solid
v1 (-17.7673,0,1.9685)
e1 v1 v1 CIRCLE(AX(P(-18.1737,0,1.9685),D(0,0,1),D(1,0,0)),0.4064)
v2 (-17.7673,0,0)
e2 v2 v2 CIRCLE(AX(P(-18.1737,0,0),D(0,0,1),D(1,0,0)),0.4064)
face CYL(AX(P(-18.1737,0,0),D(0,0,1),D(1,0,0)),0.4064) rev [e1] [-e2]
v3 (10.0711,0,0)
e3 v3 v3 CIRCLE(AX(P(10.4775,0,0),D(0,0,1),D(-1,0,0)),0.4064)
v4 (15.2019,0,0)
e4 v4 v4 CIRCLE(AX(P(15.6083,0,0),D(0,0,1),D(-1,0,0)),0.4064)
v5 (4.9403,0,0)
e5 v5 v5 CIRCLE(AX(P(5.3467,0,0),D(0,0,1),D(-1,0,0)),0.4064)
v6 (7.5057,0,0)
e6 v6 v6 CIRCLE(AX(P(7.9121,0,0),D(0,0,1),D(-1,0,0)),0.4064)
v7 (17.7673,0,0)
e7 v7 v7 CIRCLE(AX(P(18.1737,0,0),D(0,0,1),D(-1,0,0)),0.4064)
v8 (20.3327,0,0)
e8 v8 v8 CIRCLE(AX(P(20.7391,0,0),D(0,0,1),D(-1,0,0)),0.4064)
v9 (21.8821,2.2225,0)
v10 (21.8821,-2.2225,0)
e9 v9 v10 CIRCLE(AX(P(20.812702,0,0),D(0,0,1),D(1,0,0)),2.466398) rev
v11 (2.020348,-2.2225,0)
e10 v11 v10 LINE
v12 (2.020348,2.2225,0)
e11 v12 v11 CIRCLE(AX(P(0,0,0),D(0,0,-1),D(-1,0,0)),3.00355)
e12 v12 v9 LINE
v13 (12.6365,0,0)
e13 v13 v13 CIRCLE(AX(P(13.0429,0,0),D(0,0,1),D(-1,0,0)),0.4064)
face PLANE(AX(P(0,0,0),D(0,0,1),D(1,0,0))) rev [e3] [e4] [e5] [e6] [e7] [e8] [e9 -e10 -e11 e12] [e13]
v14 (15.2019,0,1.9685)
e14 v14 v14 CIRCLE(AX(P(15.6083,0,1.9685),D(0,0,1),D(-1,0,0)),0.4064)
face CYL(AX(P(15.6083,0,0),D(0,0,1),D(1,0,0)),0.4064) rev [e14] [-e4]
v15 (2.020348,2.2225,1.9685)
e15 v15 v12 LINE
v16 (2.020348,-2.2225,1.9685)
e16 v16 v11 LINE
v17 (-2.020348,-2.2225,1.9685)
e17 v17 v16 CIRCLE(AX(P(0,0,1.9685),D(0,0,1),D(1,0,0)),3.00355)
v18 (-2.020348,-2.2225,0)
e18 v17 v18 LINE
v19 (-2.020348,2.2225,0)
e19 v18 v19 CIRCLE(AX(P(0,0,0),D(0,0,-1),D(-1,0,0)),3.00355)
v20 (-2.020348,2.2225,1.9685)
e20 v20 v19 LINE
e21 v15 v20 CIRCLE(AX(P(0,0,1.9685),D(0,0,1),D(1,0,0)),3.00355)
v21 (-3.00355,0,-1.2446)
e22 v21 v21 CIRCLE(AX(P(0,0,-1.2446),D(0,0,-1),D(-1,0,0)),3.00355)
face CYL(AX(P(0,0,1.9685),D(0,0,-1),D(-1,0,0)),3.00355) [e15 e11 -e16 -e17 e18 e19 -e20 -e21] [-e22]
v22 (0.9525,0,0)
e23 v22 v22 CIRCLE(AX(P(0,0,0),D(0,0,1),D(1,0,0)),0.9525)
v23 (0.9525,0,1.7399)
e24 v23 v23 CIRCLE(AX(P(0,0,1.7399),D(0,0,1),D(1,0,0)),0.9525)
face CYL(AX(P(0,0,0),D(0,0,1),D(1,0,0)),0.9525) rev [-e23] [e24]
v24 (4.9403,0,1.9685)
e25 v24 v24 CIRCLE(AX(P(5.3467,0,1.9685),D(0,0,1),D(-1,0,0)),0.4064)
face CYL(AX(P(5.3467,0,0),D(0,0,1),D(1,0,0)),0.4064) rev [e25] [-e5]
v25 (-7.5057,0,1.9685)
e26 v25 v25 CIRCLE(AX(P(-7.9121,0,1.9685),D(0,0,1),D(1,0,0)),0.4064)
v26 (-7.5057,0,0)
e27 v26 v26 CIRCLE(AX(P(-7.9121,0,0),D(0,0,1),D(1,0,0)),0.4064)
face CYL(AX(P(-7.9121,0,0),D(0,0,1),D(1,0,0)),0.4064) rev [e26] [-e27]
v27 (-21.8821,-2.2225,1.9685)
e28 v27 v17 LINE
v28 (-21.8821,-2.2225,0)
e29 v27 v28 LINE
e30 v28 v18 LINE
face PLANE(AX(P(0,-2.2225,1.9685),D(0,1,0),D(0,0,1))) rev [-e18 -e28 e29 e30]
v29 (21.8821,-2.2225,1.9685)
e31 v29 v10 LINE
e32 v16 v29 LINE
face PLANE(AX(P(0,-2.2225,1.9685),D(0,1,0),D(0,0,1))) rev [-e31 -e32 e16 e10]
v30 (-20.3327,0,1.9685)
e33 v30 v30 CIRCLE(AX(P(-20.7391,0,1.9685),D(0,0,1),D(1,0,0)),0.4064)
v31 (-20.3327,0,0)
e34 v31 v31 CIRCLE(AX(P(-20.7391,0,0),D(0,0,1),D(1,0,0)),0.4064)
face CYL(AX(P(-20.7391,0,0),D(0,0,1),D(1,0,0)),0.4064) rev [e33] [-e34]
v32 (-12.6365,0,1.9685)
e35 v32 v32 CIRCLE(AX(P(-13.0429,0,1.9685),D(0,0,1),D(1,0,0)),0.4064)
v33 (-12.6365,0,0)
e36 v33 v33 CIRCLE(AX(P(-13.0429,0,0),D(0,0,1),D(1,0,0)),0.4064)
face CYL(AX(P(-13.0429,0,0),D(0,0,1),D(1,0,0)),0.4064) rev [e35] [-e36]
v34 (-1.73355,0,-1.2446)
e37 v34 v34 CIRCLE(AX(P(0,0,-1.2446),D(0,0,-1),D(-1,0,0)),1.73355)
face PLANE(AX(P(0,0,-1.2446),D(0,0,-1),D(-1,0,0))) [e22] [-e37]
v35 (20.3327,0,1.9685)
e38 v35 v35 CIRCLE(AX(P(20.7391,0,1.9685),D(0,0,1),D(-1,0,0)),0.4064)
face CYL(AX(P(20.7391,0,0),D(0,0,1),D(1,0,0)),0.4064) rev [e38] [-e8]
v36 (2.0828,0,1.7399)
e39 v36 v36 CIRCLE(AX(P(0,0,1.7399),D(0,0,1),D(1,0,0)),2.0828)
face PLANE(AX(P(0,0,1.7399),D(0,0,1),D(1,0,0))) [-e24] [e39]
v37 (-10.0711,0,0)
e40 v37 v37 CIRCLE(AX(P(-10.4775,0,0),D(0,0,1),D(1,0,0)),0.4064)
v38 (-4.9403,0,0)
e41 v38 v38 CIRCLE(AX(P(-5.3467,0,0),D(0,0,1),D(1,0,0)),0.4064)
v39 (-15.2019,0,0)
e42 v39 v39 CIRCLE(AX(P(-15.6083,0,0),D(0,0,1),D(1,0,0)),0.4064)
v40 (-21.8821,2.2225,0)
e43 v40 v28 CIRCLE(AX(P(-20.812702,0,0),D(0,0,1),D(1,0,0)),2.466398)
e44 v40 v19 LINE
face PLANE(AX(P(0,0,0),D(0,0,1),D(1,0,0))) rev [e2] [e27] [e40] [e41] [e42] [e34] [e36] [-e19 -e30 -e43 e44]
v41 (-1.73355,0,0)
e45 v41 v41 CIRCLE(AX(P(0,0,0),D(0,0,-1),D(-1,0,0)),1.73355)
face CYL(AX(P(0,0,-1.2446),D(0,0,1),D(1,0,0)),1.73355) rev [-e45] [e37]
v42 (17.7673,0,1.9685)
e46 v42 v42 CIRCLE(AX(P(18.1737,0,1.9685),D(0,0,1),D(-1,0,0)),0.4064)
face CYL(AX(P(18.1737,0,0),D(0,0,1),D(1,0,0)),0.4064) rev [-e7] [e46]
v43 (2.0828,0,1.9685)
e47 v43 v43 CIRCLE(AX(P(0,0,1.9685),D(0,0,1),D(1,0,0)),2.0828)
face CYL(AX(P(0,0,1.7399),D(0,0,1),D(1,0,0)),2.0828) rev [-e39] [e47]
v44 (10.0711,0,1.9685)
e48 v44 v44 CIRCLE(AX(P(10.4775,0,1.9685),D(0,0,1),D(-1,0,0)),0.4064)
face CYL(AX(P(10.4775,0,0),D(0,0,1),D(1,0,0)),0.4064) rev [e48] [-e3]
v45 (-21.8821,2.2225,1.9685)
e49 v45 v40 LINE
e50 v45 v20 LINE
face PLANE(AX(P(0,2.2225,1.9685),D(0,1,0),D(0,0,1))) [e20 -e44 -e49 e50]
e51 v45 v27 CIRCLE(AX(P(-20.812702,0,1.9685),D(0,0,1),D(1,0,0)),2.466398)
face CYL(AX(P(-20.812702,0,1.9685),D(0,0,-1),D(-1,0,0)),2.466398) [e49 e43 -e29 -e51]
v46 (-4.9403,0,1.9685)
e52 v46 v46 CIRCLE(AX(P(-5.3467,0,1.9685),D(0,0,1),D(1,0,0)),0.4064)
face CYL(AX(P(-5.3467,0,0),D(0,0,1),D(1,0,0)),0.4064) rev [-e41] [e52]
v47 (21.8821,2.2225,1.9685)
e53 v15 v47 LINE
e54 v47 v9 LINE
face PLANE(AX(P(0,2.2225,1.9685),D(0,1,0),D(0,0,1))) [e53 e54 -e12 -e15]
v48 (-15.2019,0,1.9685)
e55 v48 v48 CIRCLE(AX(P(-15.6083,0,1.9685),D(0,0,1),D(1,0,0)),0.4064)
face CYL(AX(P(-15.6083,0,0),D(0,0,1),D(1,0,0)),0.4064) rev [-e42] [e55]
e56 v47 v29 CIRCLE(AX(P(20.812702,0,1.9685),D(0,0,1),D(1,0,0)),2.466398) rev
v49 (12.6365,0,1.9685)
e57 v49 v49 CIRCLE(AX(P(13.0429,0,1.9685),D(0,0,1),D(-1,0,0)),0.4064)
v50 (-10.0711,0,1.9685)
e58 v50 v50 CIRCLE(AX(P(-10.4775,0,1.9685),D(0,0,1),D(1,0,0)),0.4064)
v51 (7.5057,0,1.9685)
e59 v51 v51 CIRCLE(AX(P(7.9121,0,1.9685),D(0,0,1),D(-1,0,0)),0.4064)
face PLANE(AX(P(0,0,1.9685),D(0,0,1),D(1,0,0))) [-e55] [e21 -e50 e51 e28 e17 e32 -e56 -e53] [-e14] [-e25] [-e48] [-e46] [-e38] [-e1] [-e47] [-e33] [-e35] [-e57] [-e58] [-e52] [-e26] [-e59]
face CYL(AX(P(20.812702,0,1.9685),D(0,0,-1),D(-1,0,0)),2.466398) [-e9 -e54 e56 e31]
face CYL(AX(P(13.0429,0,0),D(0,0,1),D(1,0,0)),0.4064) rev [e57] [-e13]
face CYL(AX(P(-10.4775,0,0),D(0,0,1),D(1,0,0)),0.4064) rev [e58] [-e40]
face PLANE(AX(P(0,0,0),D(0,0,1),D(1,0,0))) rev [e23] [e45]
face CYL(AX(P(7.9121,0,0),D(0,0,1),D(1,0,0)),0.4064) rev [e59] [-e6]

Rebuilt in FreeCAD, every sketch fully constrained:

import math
import FreeCAD as App
import Part
import Sketcher

V = App.Vector
Q = App.Units.Quantity

doc = App.newDocument("Part")
body = doc.addObject("PartDesign::Body", "Body")

# Sketch on XY plane
sketch1 = doc.addObject("Sketcher::SketchObject", "Sketch")
body.addObject(sketch1)
sketch1.AttachmentSupport = (doc.XY_Plane, [""])
sketch1.MapMode = "FlatFace"
sketch1.addGeometry([
    Part.ArcOfCircle(Part.Circle(V(0, 0, 0), V(0, 0, 1), 3), math.radians(-132), math.radians(-48)),  # 0
    Part.LineSegment(V(2, -2.2, 0), V(21.9, -2.2, 0)),  # 1
    Part.ArcOfCircle(Part.Circle(V(20.8, 0, 0), V(0, 0, 1), 2.5), math.radians(-64), math.radians(0)),  # 2
    Part.ArcOfCircle(Part.Circle(V(20.8, 0, 0), V(0, 0, 1), 2.5), math.radians(0), math.radians(64)),  # 3
    Part.LineSegment(V(21.9, 2.2, 0), V(2, 2.2, 0)),  # 4
    Part.ArcOfCircle(Part.Circle(V(0, 0, 0), V(0, 0, 1), 3), math.radians(48), math.radians(132)),  # 5
    Part.LineSegment(V(-2, 2.2, 0), V(-21.9, 2.2, 0)),  # 6
    Part.ArcOfCircle(Part.Circle(V(-20.8, 0, 0), V(0, 0, 1), 2.5), math.radians(116), math.radians(180)),  # 7
    Part.ArcOfCircle(Part.Circle(V(-20.8, 0, 0), V(0, 0, 1), 2.5), math.radians(180), math.radians(244)),  # 8
    Part.LineSegment(V(-21.9, -2.2, 0), V(-2, -2.2, 0)),  # 9
], False)
sketch1.addConstraint([
    Sketcher.Constraint("Coincident", 0, 2, 1, 1),
    Sketcher.Constraint("Coincident", 1, 2, 2, 1),
    Sketcher.Constraint("Tangent", 2, 2, 3, 1),
    Sketcher.Constraint("Coincident", 3, 2, 4, 1),
    Sketcher.Constraint("Coincident", 4, 2, 5, 1),
    Sketcher.Constraint("Coincident", 5, 2, 6, 1),
    Sketcher.Constraint("Coincident", 6, 2, 7, 1),
    Sketcher.Constraint("Tangent", 7, 2, 8, 1),
    Sketcher.Constraint("Coincident", 8, 2, 9, 1),
    Sketcher.Constraint("Coincident", 9, 2, 0, 1),
    Sketcher.Constraint("Horizontal", 1),
    Sketcher.Constraint("Horizontal", 4),
    Sketcher.Constraint("Horizontal", 6),
    Sketcher.Constraint("Horizontal", 9),
    Sketcher.Constraint("Coincident", 0, 3, -1, 1),
    Sketcher.Constraint("Coincident", 5, 3, -1, 1),
    Sketcher.Constraint("Equal", 2, 3),
    Sketcher.Constraint("Equal", 0, 5),
    Sketcher.Constraint("Equal", 3, 7),
    Sketcher.Constraint("Equal", 7, 8),
    Sketcher.Constraint("Symmetric", 2, 3, 7, 3, -1, 1),
    Sketcher.Constraint("Symmetric", 3, 2, 6, 2, -2),
    Sketcher.Constraint("PointOnObject", 2, 2, -1),
    Sketcher.Constraint("PointOnObject", 7, 2, -1),
    Sketcher.Constraint("Horizontal", 1, 2, 8, 2),
    Sketcher.Constraint("Vertical", 1, 2, 3, 2),
    Sketcher.Constraint("Radius", 0, Q("3.00355 mm")),
    Sketcher.Constraint("DistanceX", 1, 2, 2, 2, Q("0.055 in")),
    Sketcher.Constraint("DistanceY", 1, 2, 3, 2, Q("0.175 in")),
    Sketcher.Constraint("DistanceX", -1, 1, 1, 2, Q("0.8615 in")),
])
pad1 = doc.addObject("PartDesign::Pad", "Pad")
body.addObject(pad1)
pad1.Profile = sketch1
pad1.Length = Q("0.0775 in")

# Sketch on XY plane
sketch2 = doc.addObject("Sketcher::SketchObject", "Sketch001")
body.addObject(sketch2)
sketch2.AttachmentSupport = (doc.XY_Plane, [""])
sketch2.MapMode = "FlatFace"
sketch2.AttachmentOffset = App.Placement(V(0, 0, 0.0775 * 25.4), App.Rotation())
sketch2.addGeometry([
    Part.Circle(V(-20.74, 0, 0), V(0, 0, 1), 0.41),  # 0
    Part.Circle(V(-18.17, 0, 0), V(0, 0, 1), 0.41),  # 1
    Part.Circle(V(-15.61, 0, 0), V(0, 0, 1), 0.41),  # 2
    Part.Circle(V(-13.04, 0, 0), V(0, 0, 1), 0.41),  # 3
    Part.Circle(V(-10.48, 0, 0), V(0, 0, 1), 0.41),  # 4
    Part.Circle(V(-7.91, 0, 0), V(0, 0, 1), 0.41),  # 5
    Part.Circle(V(-5.35, 0, 0), V(0, 0, 1), 0.41),  # 6
    Part.Circle(V(5.35, 0, 0), V(0, 0, 1), 0.41),  # 7
    Part.Circle(V(7.91, 0, 0), V(0, 0, 1), 0.41),  # 8
    Part.Circle(V(10.48, 0, 0), V(0, 0, 1), 0.41),  # 9
    Part.Circle(V(13.04, 0, 0), V(0, 0, 1), 0.41),  # 10
    Part.Circle(V(15.61, 0, 0), V(0, 0, 1), 0.41),  # 11
    Part.Circle(V(18.17, 0, 0), V(0, 0, 1), 0.41),  # 12
    Part.Circle(V(20.74, 0, 0), V(0, 0, 1), 0.41),  # 13
], False)
sketch2.addConstraint([
    Sketcher.Constraint("Equal", 0, 1),
    Sketcher.Constraint("Equal", 1, 2),
    Sketcher.Constraint("Equal", 2, 3),
    Sketcher.Constraint("Equal", 3, 4),
    Sketcher.Constraint("Equal", 4, 5),
    Sketcher.Constraint("Equal", 5, 6),
    Sketcher.Constraint("Equal", 6, 7),
    Sketcher.Constraint("Equal", 7, 8),
    Sketcher.Constraint("Equal", 8, 9),
    Sketcher.Constraint("Equal", 9, 10),
    Sketcher.Constraint("Equal", 10, 11),
    Sketcher.Constraint("Equal", 11, 12),
    Sketcher.Constraint("Equal", 12, 13),
    Sketcher.Constraint("Symmetric", 6, 3, 7, 3, -1, 1),
    Sketcher.Constraint("Symmetric", 5, 3, 8, 3, -1, 1),
    Sketcher.Constraint("Symmetric", 4, 3, 9, 3, -1, 1),
    Sketcher.Constraint("Symmetric", 3, 3, 10, 3, -1, 1),
    Sketcher.Constraint("Symmetric", 2, 3, 11, 3, -1, 1),
    Sketcher.Constraint("Symmetric", 1, 3, 12, 3, -1, 1),
    Sketcher.Constraint("Symmetric", 0, 3, 13, 3, -1, 1),
    Sketcher.Constraint("PointOnObject", 0, 3, -1),
    Sketcher.Constraint("PointOnObject", 1, 3, -1),
    Sketcher.Constraint("PointOnObject", 2, 3, -1),
    Sketcher.Constraint("PointOnObject", 3, 3, -1),
    Sketcher.Constraint("PointOnObject", 4, 3, -1),
    Sketcher.Constraint("PointOnObject", 5, 3, -1),
    Sketcher.Constraint("PointOnObject", 6, 3, -1),
    Sketcher.Constraint("Diameter", 0, Q("0.032 in")),
    Sketcher.Constraint("DistanceX", 0, 3, 1, 3, Q("0.101 in")),
    Sketcher.Constraint("DistanceX", 1, 3, 2, 3, Q("0.101 in")),
    Sketcher.Constraint("DistanceX", 2, 3, 3, 3, Q("0.101 in")),
    Sketcher.Constraint("DistanceX", 3, 3, 4, 3, Q("0.101 in")),
    Sketcher.Constraint("DistanceX", 4, 3, 5, 3, Q("0.101 in")),
    Sketcher.Constraint("DistanceX", 5, 3, 6, 3, Q("0.101 in")),
    Sketcher.Constraint("DistanceX", 6, 3, 7, 3, Q("0.421 in")),
])
pocket1 = doc.addObject("PartDesign::Pocket", "Pocket")
body.addObject(pocket1)
pocket1.Profile = sketch2
pocket1.Type = "ThroughAll"

# Sketch on XY plane
sketch3 = doc.addObject("Sketcher::SketchObject", "Sketch002")
body.addObject(sketch3)
sketch3.AttachmentSupport = (doc.XY_Plane, [""])
sketch3.MapMode = "FlatFace"
sketch3.AttachmentOffset = App.Placement(V(0, 0, 0.0775 * 25.4), App.Rotation())
sketch3.addGeometry(Part.Circle(V(0, 0, 0), V(0, 0, 1), 2.1), False)
sketch3.addConstraint([
    Sketcher.Constraint("Coincident", 0, 3, -1, 1),
    Sketcher.Constraint("Diameter", 0, Q("0.164 in")),
])
pocket2 = doc.addObject("PartDesign::Pocket", "Pocket001")
body.addObject(pocket2)
pocket2.Profile = sketch3
pocket2.Length = Q("0.009 in")

# Sketch on XY plane
sketch4 = doc.addObject("Sketcher::SketchObject", "Sketch003")
body.addObject(sketch4)
sketch4.AttachmentSupport = (doc.XY_Plane, [""])
sketch4.MapMode = "FlatFace"
sketch4.AttachmentOffset = App.Placement(V(0, 0, 0.0685 * 25.4), App.Rotation())
sketch4.addGeometry(Part.Circle(V(0, 0, 0), V(0, 0, 1), 1), False)
sketch4.addConstraint([
    Sketcher.Constraint("Coincident", 0, 3, -1, 1),
    Sketcher.Constraint("Diameter", 0, Q("0.075 in")),
])
pocket3 = doc.addObject("PartDesign::Pocket", "Pocket002")
body.addObject(pocket3)
pocket3.Profile = sketch4
pocket3.Type = "ThroughAll"

# Sketch on XY plane
sketch5 = doc.addObject("Sketcher::SketchObject", "Sketch004")
body.addObject(sketch5)
sketch5.AttachmentSupport = (doc.XY_Plane, [""])
sketch5.MapMode = "FlatFace"
sketch5.AttachmentOffset = App.Placement(V(0, 0, -0.049 * 25.4), App.Rotation())
sketch5.addGeometry([
    Part.Circle(V(0, 0, 0), V(0, 0, 1), 3),
    Part.Circle(V(0, 0, 0), V(0, 0, 1), 1.7),
], False)
sketch5.addConstraint([
    Sketcher.Constraint("Coincident", 0, 3, -1, 1),
    Sketcher.Constraint("Coincident", 1, 3, -1, 1),
    Sketcher.Constraint("Diameter", 0, Q("0.2365 in")),
    Sketcher.Constraint("Diameter", 1, Q("0.1365 in")),
])
pad2 = doc.addObject("PartDesign::Pad", "Pad001")
body.addObject(pad2)
pad2.Profile = sketch5
pad2.Length = Q("0.049 in")

doc.recompute()
